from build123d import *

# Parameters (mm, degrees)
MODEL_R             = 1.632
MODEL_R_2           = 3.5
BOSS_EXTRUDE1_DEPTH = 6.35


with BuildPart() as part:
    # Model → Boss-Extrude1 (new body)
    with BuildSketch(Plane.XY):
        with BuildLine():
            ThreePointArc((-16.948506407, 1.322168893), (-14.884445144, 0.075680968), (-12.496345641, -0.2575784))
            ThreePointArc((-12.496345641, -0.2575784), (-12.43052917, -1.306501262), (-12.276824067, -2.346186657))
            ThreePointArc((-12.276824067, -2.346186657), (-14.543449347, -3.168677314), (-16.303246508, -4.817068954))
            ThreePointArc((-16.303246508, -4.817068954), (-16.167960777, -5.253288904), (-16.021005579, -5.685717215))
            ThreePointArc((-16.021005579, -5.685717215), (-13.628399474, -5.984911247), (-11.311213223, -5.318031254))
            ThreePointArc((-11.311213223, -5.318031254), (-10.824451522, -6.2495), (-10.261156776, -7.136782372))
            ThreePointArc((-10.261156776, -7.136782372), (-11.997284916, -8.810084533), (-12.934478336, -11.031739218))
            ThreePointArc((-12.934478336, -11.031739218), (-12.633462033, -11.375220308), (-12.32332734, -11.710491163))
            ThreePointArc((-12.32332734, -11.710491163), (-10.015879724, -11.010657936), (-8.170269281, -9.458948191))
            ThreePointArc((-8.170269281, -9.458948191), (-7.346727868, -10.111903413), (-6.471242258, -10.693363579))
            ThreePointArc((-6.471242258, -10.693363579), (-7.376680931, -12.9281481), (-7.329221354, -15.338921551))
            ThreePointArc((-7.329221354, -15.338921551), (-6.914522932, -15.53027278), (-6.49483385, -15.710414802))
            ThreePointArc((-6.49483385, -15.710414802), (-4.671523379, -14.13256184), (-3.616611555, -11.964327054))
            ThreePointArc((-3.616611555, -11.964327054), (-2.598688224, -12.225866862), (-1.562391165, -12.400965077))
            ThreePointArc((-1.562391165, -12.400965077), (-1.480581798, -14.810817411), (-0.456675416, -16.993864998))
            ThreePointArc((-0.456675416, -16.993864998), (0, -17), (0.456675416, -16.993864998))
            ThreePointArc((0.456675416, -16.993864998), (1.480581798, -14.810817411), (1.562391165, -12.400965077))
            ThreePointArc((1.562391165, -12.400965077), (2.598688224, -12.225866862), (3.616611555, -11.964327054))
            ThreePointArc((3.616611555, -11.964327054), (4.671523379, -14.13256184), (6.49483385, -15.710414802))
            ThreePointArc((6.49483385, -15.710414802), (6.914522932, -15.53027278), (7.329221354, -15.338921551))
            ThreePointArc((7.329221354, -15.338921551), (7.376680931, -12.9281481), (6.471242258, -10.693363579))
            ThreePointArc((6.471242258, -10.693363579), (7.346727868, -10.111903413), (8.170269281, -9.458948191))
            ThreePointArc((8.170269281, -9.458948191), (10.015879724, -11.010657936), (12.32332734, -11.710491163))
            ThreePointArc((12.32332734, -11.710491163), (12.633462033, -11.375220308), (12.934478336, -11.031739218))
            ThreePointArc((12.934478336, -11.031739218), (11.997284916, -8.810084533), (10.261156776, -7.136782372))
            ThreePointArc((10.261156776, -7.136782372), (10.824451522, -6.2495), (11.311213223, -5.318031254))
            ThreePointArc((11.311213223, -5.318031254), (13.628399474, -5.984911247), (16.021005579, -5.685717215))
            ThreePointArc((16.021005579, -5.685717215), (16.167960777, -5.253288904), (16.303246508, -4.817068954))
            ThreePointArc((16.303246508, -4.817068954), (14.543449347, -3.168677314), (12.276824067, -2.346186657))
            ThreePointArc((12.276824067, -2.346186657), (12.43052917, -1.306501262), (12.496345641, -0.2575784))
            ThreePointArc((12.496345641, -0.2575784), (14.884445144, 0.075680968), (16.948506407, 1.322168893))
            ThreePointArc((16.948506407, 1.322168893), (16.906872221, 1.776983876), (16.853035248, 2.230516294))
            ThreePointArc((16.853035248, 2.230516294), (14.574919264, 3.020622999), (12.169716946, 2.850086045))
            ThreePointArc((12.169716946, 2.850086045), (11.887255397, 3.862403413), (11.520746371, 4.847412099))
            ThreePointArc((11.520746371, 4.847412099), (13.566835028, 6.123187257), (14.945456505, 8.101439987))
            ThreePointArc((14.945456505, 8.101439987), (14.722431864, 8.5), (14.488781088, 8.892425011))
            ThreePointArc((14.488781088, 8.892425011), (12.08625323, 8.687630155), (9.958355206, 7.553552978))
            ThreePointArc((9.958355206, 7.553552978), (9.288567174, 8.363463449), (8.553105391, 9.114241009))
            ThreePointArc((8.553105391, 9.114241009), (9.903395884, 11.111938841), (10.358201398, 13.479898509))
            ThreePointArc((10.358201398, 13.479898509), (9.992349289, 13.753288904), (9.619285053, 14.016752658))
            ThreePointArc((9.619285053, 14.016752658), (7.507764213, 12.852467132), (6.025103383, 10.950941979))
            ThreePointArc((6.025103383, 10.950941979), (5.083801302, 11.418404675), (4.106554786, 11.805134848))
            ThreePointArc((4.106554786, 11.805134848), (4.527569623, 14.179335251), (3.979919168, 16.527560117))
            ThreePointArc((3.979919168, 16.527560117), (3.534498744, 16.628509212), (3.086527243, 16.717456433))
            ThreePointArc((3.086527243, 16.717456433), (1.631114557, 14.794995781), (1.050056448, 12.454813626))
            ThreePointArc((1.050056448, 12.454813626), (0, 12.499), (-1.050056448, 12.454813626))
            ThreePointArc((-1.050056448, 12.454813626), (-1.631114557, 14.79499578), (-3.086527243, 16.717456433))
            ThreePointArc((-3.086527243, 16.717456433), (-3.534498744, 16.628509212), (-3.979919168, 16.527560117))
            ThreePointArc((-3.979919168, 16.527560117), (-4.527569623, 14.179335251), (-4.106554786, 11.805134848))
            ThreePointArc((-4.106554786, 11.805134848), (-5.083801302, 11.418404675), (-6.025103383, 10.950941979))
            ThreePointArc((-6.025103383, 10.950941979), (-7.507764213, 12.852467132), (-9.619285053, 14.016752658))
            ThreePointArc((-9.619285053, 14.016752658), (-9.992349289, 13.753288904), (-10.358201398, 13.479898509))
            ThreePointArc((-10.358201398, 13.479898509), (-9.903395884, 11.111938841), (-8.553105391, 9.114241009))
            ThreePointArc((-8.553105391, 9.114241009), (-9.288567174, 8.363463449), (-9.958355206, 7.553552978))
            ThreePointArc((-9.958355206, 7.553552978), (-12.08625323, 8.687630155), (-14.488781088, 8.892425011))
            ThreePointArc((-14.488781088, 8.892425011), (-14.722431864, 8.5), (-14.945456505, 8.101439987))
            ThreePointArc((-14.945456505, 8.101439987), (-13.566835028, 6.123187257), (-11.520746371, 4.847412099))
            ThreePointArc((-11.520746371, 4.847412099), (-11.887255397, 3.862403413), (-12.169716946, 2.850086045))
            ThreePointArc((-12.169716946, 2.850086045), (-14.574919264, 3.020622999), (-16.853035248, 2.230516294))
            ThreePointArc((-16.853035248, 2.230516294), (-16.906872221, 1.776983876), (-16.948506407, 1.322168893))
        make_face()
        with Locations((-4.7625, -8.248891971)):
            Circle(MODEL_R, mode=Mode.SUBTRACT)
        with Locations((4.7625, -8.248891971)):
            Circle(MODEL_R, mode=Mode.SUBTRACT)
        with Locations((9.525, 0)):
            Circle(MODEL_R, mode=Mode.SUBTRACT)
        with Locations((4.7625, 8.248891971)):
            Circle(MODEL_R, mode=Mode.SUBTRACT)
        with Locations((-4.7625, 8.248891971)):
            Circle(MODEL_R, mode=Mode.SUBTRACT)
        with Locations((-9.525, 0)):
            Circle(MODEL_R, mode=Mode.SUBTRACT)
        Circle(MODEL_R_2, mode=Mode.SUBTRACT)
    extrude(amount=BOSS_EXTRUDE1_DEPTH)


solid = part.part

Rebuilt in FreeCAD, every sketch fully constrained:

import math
import FreeCAD as App
import Part
import Sketcher
from FreeCAD import Vector
Q = App.Units.Quantity

doc = App.newDocument("Part")
body = doc.addObject("PartDesign::Body", "Body")

# Sketch on XY plane
sketch1 = body.newObject("Sketcher::SketchObject", "Sketch")
sketch1.AttachmentSupport = (doc.getObject("XY_Plane"), [""])
sketch1.MapMode = "FlatFace"
sketch1.addGeometry([
    Part.ArcOfCircle(Part.Circle(Vector(-12.878044, 5.730268, 0), Vector(0, 0, 1), 6), math.radians(-132.719546), math.radians(-86.352582)),  # 0
    Part.ArcOfCircle(Part.Circle(Vector(0, 0, 0), Vector(0, 0, 1), 12.499), math.radians(-178.819169), math.radians(-169.180831)),  # 1
    Part.ArcOfCircle(Part.Circle(Vector(-11.405238, -8.282544, 0), Vector(0, 0, 1), 6), math.radians(98.352583), math.radians(144.719546)),  # 2
    Part.ArcOfCircle(Part.Circle(Vector(0.000001, 0, 0), Vector(0, 0, 1), 17.000001), math.radians(-163.539336), math.radians(-160.460664)),  # 3
    Part.ArcOfCircle(Part.Circle(Vector(-14.095389, -0.003112, 0), Vector(0, 0, 1), 6), math.radians(-108.719546), math.radians(-62.352583)),  # 4
    Part.ArcOfCircle(Part.Circle(Vector(0, 0, 0), Vector(0, 0, 1), 12.499), math.radians(-154.81917), math.radians(-145.18083)),  # 5
    Part.ArcOfCircle(Part.Circle(Vector(-7.05039, -12.205409, 0), Vector(0, 0, 1), 6), math.radians(122.352582), math.radians(168.719546)),  # 6
    Part.ArcOfCircle(Part.Circle(Vector(0, 0, 0), Vector(0, 0, 1), 17.000001), math.radians(-139.539337), math.radians(-136.460663)),  # 7
    Part.ArcOfCircle(Part.Circle(Vector(-12.875513, -5.735954, 0), Vector(0, 0, 1), 6), math.radians(-84.719546), math.radians(-38.352582)),  # 8
    Part.ArcOfCircle(Part.Circle(Vector(0, 0, 0), Vector(0, 0, 1), 12.499), math.radians(-130.81917), math.radians(-121.18083)),  # 9
    Part.ArcOfCircle(Part.Circle(Vector(-1.476464, -14.017848, 0), Vector(0, 0, 1), 6), math.radians(146.352582), math.radians(192.719546)),  # 10
    Part.ArcOfCircle(Part.Circle(Vector(0, 0, 0), Vector(0, 0, 1), 17), math.radians(-115.539337), math.radians(-112.460663)),  # 11
    Part.ArcOfCircle(Part.Circle(Vector(-9.429343, -10.476998, 0), Vector(0, 0, 1), 6), math.radians(-60.719546), math.radians(-14.352582)),  # 12
    Part.ArcOfCircle(Part.Circle(Vector(0, 0, 0), Vector(0, 0, 1), 12.499), math.radians(-106.81917), math.radians(-97.18083)),  # 13
    Part.ArcOfCircle(Part.Circle(Vector(4.352755, -13.406473, 0), Vector(0, 0, 1), 6), math.radians(170.352582), math.radians(216.719546)),  # 14
    Part.ArcOfCircle(Part.Circle(Vector(0, 0, 0), Vector(0, 0, 1), 17), math.radians(-91.539337), math.radians(-88.460663)),  # 15
    Part.ArcOfCircle(Part.Circle(Vector(-4.352755, -13.406473, 0), Vector(0, 0, 1), 6), math.radians(-36.719546), math.radians(9.647418)),  # 16
    Part.ArcOfCircle(Part.Circle(Vector(0, 0, 0), Vector(0, 0, 1), 12.499), math.radians(-82.81917), math.radians(-73.18083)),  # 17
    Part.ArcOfCircle(Part.Circle(Vector(9.429343, -10.476998, 0), Vector(0, 0, 1), 6), math.radians(-165.647418), math.radians(-119.280454)),  # 18
    Part.ArcOfCircle(Part.Circle(Vector(0, 0, 0), Vector(0, 0, 1), 17), math.radians(-67.539337), math.radians(-64.460663)),  # 19
    Part.ArcOfCircle(Part.Circle(Vector(1.476464, -14.017848, 0), Vector(0, 0, 1), 6), math.radians(-12.719546), math.radians(33.647418)),  # 20
    Part.ArcOfCircle(Part.Circle(Vector(0, 0, 0), Vector(0, 0, 1), 12.499), math.radians(-58.81917), math.radians(-49.18083)),  # 21
    Part.ArcOfCircle(Part.Circle(Vector(12.875513, -5.735954, 0), Vector(0, 0, 1), 6), math.radians(-141.647418), math.radians(-95.280454)),  # 22
    Part.ArcOfCircle(Part.Circle(Vector(0, 0, 0), Vector(0, 0, 1), 17.000001), math.radians(-43.539337), math.radians(-40.460663)),  # 23
    Part.ArcOfCircle(Part.Circle(Vector(7.05039, -12.205409, 0), Vector(0, 0, 1), 6), math.radians(11.280454), math.radians(57.647418)),  # 24
    Part.ArcOfCircle(Part.Circle(Vector(0, 0, 0), Vector(0, 0, 1), 12.499), math.radians(-34.81917), math.radians(-25.18083)),  # 25
    Part.ArcOfCircle(Part.Circle(Vector(14.095389, -0.003112, 0), Vector(0, 0, 1), 6), math.radians(-117.647417), math.radians(-71.280454)),  # 26
    Part.ArcOfCircle(Part.Circle(Vector(-0.000001, 0, 0), Vector(0, 0, 1), 17.000001), math.radians(-19.539336), math.radians(-16.460664)),  # 27
    Part.ArcOfCircle(Part.Circle(Vector(11.405238, -8.282544, 0), Vector(0, 0, 1), 6), math.radians(35.280454), math.radians(81.647417)),  # 28
    Part.ArcOfCircle(Part.Circle(Vector(0, 0, 0), Vector(0, 0, 1), 12.499), math.radians(-10.819169), math.radians(-1.180831)),  # 29
    Part.ArcOfCircle(Part.Circle(Vector(12.878044, 5.730268, 0), Vector(0, 0, 1), 6), math.radians(-93.647418), math.radians(-47.280454)),  # 30
    Part.ArcOfCircle(Part.Circle(Vector(-0.000001, 0, 0), Vector(0, 0, 1), 17.000001), math.radians(4.460664), math.radians(7.539336)),  # 31
    Part.ArcOfCircle(Part.Circle(Vector(13.788018, -2.927552, 0), Vector(0, 0, 1), 6), math.radians(59.280454), math.radians(105.647418)),  # 32
    Part.ArcOfCircle(Part.Circle(Vector(0, 0, 0), Vector(0, 0, 1), 12.499), math.radians(13.180831), math.radians(22.81917)),  # 33
    Part.ArcOfCircle(Part.Circle(Vector(9.433969, 10.472833, 0), Vector(0, 0, 1), 6), math.radians(-69.647417), math.radians(-23.280454)),  # 34
    Part.ArcOfCircle(Part.Circle(Vector(-0.000001, 0, 0), Vector(0, 0, 1), 17.000001), math.radians(28.460664), math.radians(31.539337)),  # 35
    Part.ArcOfCircle(Part.Circle(Vector(13.786724, 2.93364, 0), Vector(0, 0, 1), 6), math.radians(83.280454), math.radians(129.647418)),  # 36
    Part.ArcOfCircle(Part.Circle(Vector(0, 0, 0), Vector(0, 0, 1), 12.499), math.radians(37.18083), math.radians(46.81917)),  # 37
    Part.ArcOfCircle(Part.Circle(Vector(4.358675, 13.40455, 0), Vector(0, 0, 1), 6), math.radians(-45.647417), math.radians(0.719546)),  # 38
    Part.ArcOfCircle(Part.Circle(Vector(-0.000001, -0.000001, 0), Vector(0, 0, 1), 17.000002), math.radians(52.460664), math.radians(55.539336)),  # 39
    Part.ArcOfCircle(Part.Circle(Vector(11.40158, 8.28758, 0), Vector(0, 0, 1), 6), math.radians(107.280454), math.radians(153.647418)),  # 40
    Part.ArcOfCircle(Part.Circle(Vector(0, 0, 0), Vector(0, 0, 1), 12.499), math.radians(61.18083), math.radians(70.81917)),  # 41
    Part.ArcOfCircle(Part.Circle(Vector(-1.470274, 14.018498, 0), Vector(0, 0, 1), 6), math.radians(-21.647418), math.radians(24.719546)),  # 42
    Part.ArcOfCircle(Part.Circle(Vector(0, -0.000002, 0), Vector(0, 0, 1), 17.000002), math.radians(76.460664), math.radians(79.539336)),  # 43
    Part.ArcOfCircle(Part.Circle(Vector(7.044999, 12.208521, 0), Vector(0, 0, 1), 6), math.radians(131.280454), math.radians(177.647418)),  # 44
    Part.ArcOfCircle(Part.Circle(Vector(0, 0, 0), Vector(0, 0, 1), 12.499), math.radians(85.18083), math.radians(94.81917)),  # 45
    Part.ArcOfCircle(Part.Circle(Vector(-7.044999, 12.208521, 0), Vector(0, 0, 1), 6), math.radians(2.352582), math.radians(48.719546)),  # 46
    Part.ArcOfCircle(Part.Circle(Vector(0, -0.000002, 0), Vector(0, 0, 1), 17.000002), math.radians(100.460664), math.radians(103.539336)),  # 47
    Part.ArcOfCircle(Part.Circle(Vector(1.470274, 14.018498, 0), Vector(0, 0, 1), 6), math.radians(155.280454), math.radians(201.647418)),  # 48
    Part.ArcOfCircle(Part.Circle(Vector(0, 0, 0), Vector(0, 0, 1), 12.499), math.radians(109.18083), math.radians(118.81917)),  # 49
    Part.ArcOfCircle(Part.Circle(Vector(-11.40158, 8.28758, 0), Vector(0, 0, 1), 6), math.radians(26.352582), math.radians(72.719546)),  # 50
    Part.ArcOfCircle(Part.Circle(Vector(0.000001, -0.000001, 0), Vector(0, 0, 1), 17.000002), math.radians(124.460664), math.radians(127.539336)),  # 51
    Part.ArcOfCircle(Part.Circle(Vector(-4.358675, 13.40455, 0), Vector(0, 0, 1), 6), math.radians(179.280454), math.radians(225.647417)),  # 52
    Part.ArcOfCircle(Part.Circle(Vector(0, 0, 0), Vector(0, 0, 1), 12.499), math.radians(133.18083), math.radians(142.81917)),  # 53
    Part.ArcOfCircle(Part.Circle(Vector(-13.786724, 2.93364, 0), Vector(0, 0, 1), 6), math.radians(50.352582), math.radians(96.719546)),  # 54
    Part.ArcOfCircle(Part.Circle(Vector(0.000001, 0, 0), Vector(0, 0, 1), 17.000001), math.radians(148.460663), math.radians(151.539336)),  # 55
    Part.ArcOfCircle(Part.Circle(Vector(-9.433969, 10.472833, 0), Vector(0, 0, 1), 6), math.radians(-156.719546), math.radians(-110.352583)),  # 56
    Part.ArcOfCircle(Part.Circle(Vector(0, 0, 0), Vector(0, 0, 1), 12.499), math.radians(157.18083), math.radians(166.819169)),  # 57
    Part.ArcOfCircle(Part.Circle(Vector(-13.788018, -2.927552, 0), Vector(0, 0, 1), 6), math.radians(74.352582), math.radians(120.719546)),  # 58
    Part.ArcOfCircle(Part.Circle(Vector(0.000001, 0, 0), Vector(0, 0, 1), 17.000001), math.radians(172.460664), math.radians(175.539336)),  # 59
    Part.Circle(Vector(-4.7625, -8.248892, 0), Vector(0, 0, 1), 1.632),  # 60
    Part.Circle(Vector(4.7625, -8.248892, 0), Vector(0, 0, 1), 1.632),  # 61
    Part.Circle(Vector(-9.525, 0, 0), Vector(0, 0, 1), 1.632),  # 62
    Part.Circle(Vector(-4.7625, 8.248892, 0), Vector(0, 0, 1), 1.632),  # 63
    Part.Circle(Vector(0, 0, 0), Vector(0, 0, 1), 3.5),  # 64
    Part.Circle(Vector(9.525, 0, 0), Vector(0, 0, 1), 1.632),  # 65
    Part.Circle(Vector(4.7625, 8.248892, 0), Vector(0, 0, 1), 1.632),  # 66
], False)
sketch1.addConstraint([
    Sketcher.Constraint("Coincident", 0, 2, 1, 1),
    Sketcher.Constraint("Coincident", 1, 2, 2, 1),
    Sketcher.Constraint("Coincident", 2, 2, 3, 1),
    Sketcher.Constraint("Coincident", 3, 2, 4, 1),
    Sketcher.Constraint("Coincident", 4, 2, 5, 1),
    Sketcher.Constraint("Coincident", 5, 2, 6, 1),
    Sketcher.Constraint("Coincident", 6, 2, 7, 1),
    Sketcher.Constraint("Coincident", 7, 2, 8, 1),
    Sketcher.Constraint("Coincident", 8, 2, 9, 1),
    Sketcher.Constraint("Coincident", 9, 2, 10, 1),
    Sketcher.Constraint("Coincident", 10, 2, 11, 1),
    Sketcher.Constraint("Coincident", 11, 2, 12, 1),
    Sketcher.Constraint("Coincident", 12, 2, 13, 1),
    Sketcher.Constraint("Coincident", 13, 2, 14, 1),
    Sketcher.Constraint("Coincident", 14, 2, 15, 1),
    Sketcher.Constraint("Coincident", 15, 2, 16, 1),
    Sketcher.Constraint("Coincident", 16, 2, 17, 1),
    Sketcher.Constraint("Coincident", 17, 2, 18, 1),
    Sketcher.Constraint("Coincident", 18, 2, 19, 1),
    Sketcher.Constraint("Coincident", 19, 2, 20, 1),
    Sketcher.Constraint("Coincident", 20, 2, 21, 1),
    Sketcher.Constraint("Coincident", 21, 2, 22, 1),
    Sketcher.Constraint("Coincident", 22, 2, 23, 1),
    Sketcher.Constraint("Coincident", 23, 2, 24, 1),
    Sketcher.Constraint("Coincident", 24, 2, 25, 1),
    Sketcher.Constraint("Coincident", 25, 2, 26, 1),
    Sketcher.Constraint("Coincident", 26, 2, 27, 1),
    Sketcher.Constraint("Coincident", 27, 2, 28, 1),
    Sketcher.Constraint("Coincident", 28, 2, 29, 1),
    Sketcher.Constraint("Coincident", 29, 2, 30, 1),
    Sketcher.Constraint("Coincident", 30, 2, 31, 1),
    Sketcher.Constraint("Coincident", 31, 2, 32, 1),
    Sketcher.Constraint("Coincident", 32, 2, 33, 1),
    Sketcher.Constraint("Coincident", 33, 2, 34, 1),
    Sketcher.Constraint("Coincident", 34, 2, 35, 1),
    Sketcher.Constraint("Coincident", 35, 2, 36, 1),
    Sketcher.Constraint("Coincident", 36, 2, 37, 1),
    Sketcher.Constraint("Coincident", 37, 2, 38, 1),
    Sketcher.Constraint("Coincident", 38, 2, 39, 1),
    Sketcher.Constraint("Coincident", 39, 2, 40, 1),
    Sketcher.Constraint("Coincident", 40, 2, 41, 1),
    Sketcher.Constraint("Coincident", 41, 2, 42, 1),
    Sketcher.Constraint("Coincident", 42, 2, 43, 1),
    Sketcher.Constraint("Coincident", 43, 2, 44, 1),
    Sketcher.Constraint("Coincident", 44, 2, 45, 1),
    Sketcher.Constraint("Coincident", 45, 2, 46, 1),
    Sketcher.Constraint("Coincident", 46, 2, 47, 1),
    Sketcher.Constraint("Coincident", 47, 2, 48, 1),
    Sketcher.Constraint("Coincident", 48, 2, 49, 1),
    Sketcher.Constraint("Coincident", 49, 2, 50, 1),
    Sketcher.Constraint("Coincident", 50, 2, 51, 1),
    Sketcher.Constraint("Coincident", 51, 2, 52, 1),
    Sketcher.Constraint("Coincident", 52, 2, 53, 1),
    Sketcher.Constraint("Coincident", 53, 2, 54, 1),
    Sketcher.Constraint("Coincident", 54, 2, 55, 1),
    Sketcher.Constraint("Coincident", 55, 2, 56, 1),
    Sketcher.Constraint("Coincident", 56, 2, 57, 1),
    Sketcher.Constraint("Coincident", 57, 2, 58, 1),
    Sketcher.Constraint("Coincident", 58, 2, 59, 1),
    Sketcher.Constraint("Coincident", 59, 2, 0, 1),
    Sketcher.Constraint("Coincident", 1, 3, -1, 1),
    Sketcher.Constraint("Coincident", 3, 3, -1, 1),
    Sketcher.Constraint("Coincident", 5, 3, -1, 1),
    Sketcher.Constraint("Coincident", 7, 3, -1, 1),
    Sketcher.Constraint("Coincident", 9, 3, -1, 1),
    Sketcher.Constraint("Coincident", 11, 3, -1, 1),
    Sketcher.Constraint("Coincident", 13, 3, -1, 1),
    Sketcher.Constraint("Coincident", 15, 3, -1, 1),
    Sketcher.Constraint("Coincident", 17, 3, -1, 1),
    Sketcher.Constraint("Coincident", 19, 3, -1, 1),
    Sketcher.Constraint("Coincident", 21, 3, -1, 1),
    Sketcher.Constraint("Coincident", 23, 3, -1, 1),
    Sketcher.Constraint("Coincident", 25, 3, -1, 1),
    Sketcher.Constraint("Coincident", 27, 3, -1, 1),
    Sketcher.Constraint("Coincident", 29, 3, -1, 1),
    Sketcher.Constraint("Coincident", 31, 3, -1, 1),
    Sketcher.Constraint("Coincident", 33, 3, -1, 1),
    Sketcher.Constraint("Coincident", 35, 3, -1, 1),
    Sketcher.Constraint("Coincident", 37, 3, -1, 1),
    Sketcher.Constraint("Coincident", 39, 3, -1, 1),
    Sketcher.Constraint("Coincident", 41, 3, -1, 1),
    Sketcher.Constraint("Coincident", 43, 3, -1, 1),
    Sketcher.Constraint("Coincident", 45, 3, -1, 1),
    Sketcher.Constraint("Coincident", 47, 3, -1, 1),
    Sketcher.Constraint("Coincident", 49, 3, -1, 1),
    Sketcher.Constraint("Coincident", 51, 3, -1, 1),
    Sketcher.Constraint("Coincident", 53, 3, -1, 1),
    Sketcher.Constraint("Coincident", 55, 3, -1, 1),
    Sketcher.Constraint("Coincident", 57, 3, -1, 1),
    Sketcher.Constraint("Coincident", 59, 3, -1, 1),
    Sketcher.Constraint("Coincident", 64, 3, -1, 1),
    Sketcher.Constraint("Equal", 0, 2),
    Sketcher.Constraint("Equal", 2, 4),
    Sketcher.Constraint("Equal", 1, 5),
    Sketcher.Constraint("Equal", 4, 6),
    Sketcher.Constraint("Equal", 3, 7),
    Sketcher.Constraint("Equal", 6, 8),
    Sketcher.Constraint("Equal", 5, 9),
    Sketcher.Constraint("Equal", 8, 10),
    Sketcher.Constraint("Equal", 7, 11),
    Sketcher.Constraint("Equal", 10, 12),
    Sketcher.Constraint("Equal", 9, 13),
    Sketcher.Constraint("Equal", 12, 14),
    Sketcher.Constraint("Equal", 11, 15),
    Sketcher.Constraint("Equal", 14, 16),
    Sketcher.Constraint("Equal", 13, 17),
    Sketcher.Constraint("Equal", 16, 18),
    Sketcher.Constraint("Equal", 15, 19),
    Sketcher.Constraint("Equal", 18, 20),
    Sketcher.Constraint("Equal", 17, 21),
    Sketcher.Constraint("Equal", 20, 22),
    Sketcher.Constraint("Equal", 19, 23),
    Sketcher.Constraint("Equal", 22, 24),
    Sketcher.Constraint("Equal", 21, 25),
    Sketcher.Constraint("Equal", 24, 26),
    Sketcher.Constraint("Equal", 23, 27),
    Sketcher.Constraint("Equal", 26, 28),
    Sketcher.Constraint("Equal", 25, 29),
    Sketcher.Constraint("Equal", 28, 30),
    Sketcher.Constraint("Equal", 27, 31),
    Sketcher.Constraint("Equal", 30, 32),
    Sketcher.Constraint("Equal", 29, 33),
    Sketcher.Constraint("Equal", 32, 34),
    Sketcher.Constraint("Equal", 31, 35),
    Sketcher.Constraint("Equal", 34, 36),
    Sketcher.Constraint("Equal", 33, 37),
    Sketcher.Constraint("Equal", 36, 38),
    Sketcher.Constraint("Equal", 35, 39),
    Sketcher.Constraint("Equal", 38, 40),
    Sketcher.Constraint("Equal", 37, 41),
    Sketcher.Constraint("Equal", 40, 42),
    Sketcher.Constraint("Equal", 39, 43),
    Sketcher.Constraint("Equal", 42, 44),
    Sketcher.Constraint("Equal", 41, 45),
    Sketcher.Constraint("Equal", 44, 46),
    Sketcher.Constraint("Equal", 43, 47),
    Sketcher.Constraint("Equal", 46, 48),
    Sketcher.Constraint("Equal", 45, 49),
    Sketcher.Constraint("Equal", 48, 50),
    Sketcher.Constraint("Equal", 47, 51),
    Sketcher.Constraint("Equal", 50, 52),
    Sketcher.Constraint("Equal", 49, 53),
    Sketcher.Constraint("Equal", 52, 54),
    Sketcher.Constraint("Equal", 51, 55),
    Sketcher.Constraint("Equal", 54, 56),
    Sketcher.Constraint("Equal", 53, 57),
    Sketcher.Constraint("Equal", 56, 58),
    Sketcher.Constraint("Equal", 55, 59),
    Sketcher.Constraint("Equal", 60, 61),
    Sketcher.Constraint("Equal", 61, 62),
    Sketcher.Constraint("Equal", 62, 63),
    Sketcher.Constraint("Equal", 63, 65),
    Sketcher.Constraint("Equal", 65, 66),
    Sketcher.Constraint("Symmetric", 61, 3, 63, 3, -1, 1),
    Sketcher.Constraint("Symmetric", 62, 3, 65, 3, -1, 1),
    Sketcher.Constraint("Symmetric", 60, 3, 66, 3, -1, 1),
    Sketcher.Constraint("Symmetric", 14, 3, 16, 3, -2),
    Sketcher.Constraint("Symmetric", 12, 3, 18, 3, -2),
    Sketcher.Constraint("Symmetric", 10, 3, 20, 3, -2),
    Sketcher.Constraint("Symmetric", 8, 3, 22, 3, -2),
    Sketcher.Constraint("Symmetric", 6, 3, 24, 3, -2),
    Sketcher.Constraint("Symmetric", 4, 3, 26, 3, -2),
    Sketcher.Constraint("Symmetric", 2, 3, 28, 3, -2),
    Sketcher.Constraint("Symmetric", 0, 3, 30, 3, -2),
    Sketcher.Constraint("Symmetric", 44, 3, 46, 3, -2),
    Sketcher.Constraint("Symmetric", 42, 3, 48, 3, -2),
    Sketcher.Constraint("Symmetric", 40, 3, 50, 3, -2),
    Sketcher.Constraint("Symmetric", 38, 3, 52, 3, -2),
    Sketcher.Constraint("Symmetric", 36, 3, 54, 3, -2),
    Sketcher.Constraint("Symmetric", 34, 3, 56, 3, -2),
    Sketcher.Constraint("Symmetric", 32, 3, 58, 3, -2),
    Sketcher.Constraint("Symmetric", 60, 3, 61, 3, -2),
    Sketcher.Constraint("PointOnObject", 62, 3, -1),
    Sketcher.Constraint("Diameter", 64, Q("7 mm")),
    Sketcher.Constraint("Radius", 0, Q("6 mm")),
    Sketcher.Constraint("Radius", 3, Q("17.000001 mm")),
    Sketcher.Constraint("Diameter", 60, Q("3.264 mm")),
    Sketcher.Constraint("Radius", 1, Q("12.499 mm")),
    Sketcher.Constraint("DistanceX", -1, 1, 44, 3, Q("7.044999 mm")),
    Sketcher.Constraint("DistanceX", 62, 3, -1, 1, Q("9.525 mm")),
    Sketcher.Constraint("DistanceY", -1, 1, 42, 3, Q("14.018498 mm")),
    Sketcher.Constraint("DistanceX", 60, 3, -1, 1, Q("4.7625 mm")),
    Sketcher.Constraint("DistanceX", -1, 1, 38, 2, Q("10.358201 mm")),
    Sketcher.Constraint("DistanceY", -1, 1, 0, 3, Q("5.730268 mm")),
    Sketcher.Constraint("DistanceX", 2, 3, -1, 1, Q("11.405238 mm")),
    Sketcher.Constraint("DistanceX", 4, 3, -1, 1, Q("14.095389 mm")),
    Sketcher.Constraint("DistanceX", 6, 3, -1, 1, Q("7.05039 mm")),
    Sketcher.Constraint("DistanceY", 6, 3, -1, 1, Q("12.205409 mm")),
    Sketcher.Constraint("DistanceX", -1, 1, 34, 3, Q("9.433969 mm")),
    Sketcher.Constraint("DistanceY", -1, 1, 36, 3, Q("2.93364 mm")),
    Sketcher.Constraint("DistanceY", -1, 1, 38, 3, Q("13.40455 mm")),
    Sketcher.Constraint("DistanceX", -1, 1, 40, 3, Q("11.40158 mm")),
    Sketcher.Constraint("DistanceY", -1, 1, 40, 3, Q("8.28758 mm")),
    Sketcher.Constraint("DistanceY", -1, 1, 44, 3, Q("12.208521 mm")),
    Sketcher.Constraint("DistanceY", 60, 3, -1, 1, Q("8.248892 mm")),
    Sketcher.Constraint("DistanceY", 0, 2, -1, 1, Q("0.257578 mm")),
    Sketcher.Constraint("DistanceY", 2, 2, -1, 1, Q("4.817069 mm")),
    Sketcher.Constraint("DistanceY", 4, 2, -1, 1, Q("5.318031 mm")),
    Sketcher.Constraint("DistanceY", 7, 2, -1, 1, Q("11.710491 mm")),
    Sketcher.Constraint("DistanceX", 8, 2, -1, 1, Q("8.170269 mm")),
    Sketcher.Constraint("DistanceX", 10, 2, -1, 1, Q("7.329221 mm")),
    Sketcher.Constraint("DistanceX", 12, 2, -1, 1, Q("3.616612 mm")),
    Sketcher.Constraint("DistanceX", 13, 2, -1, 1, Q("1.562391 mm")),
    Sketcher.Constraint("DistanceY", -1, 1, 34, 2, Q("8.10144 mm")),
    Sketcher.Constraint("DistanceX", -1, 1, 35, 2, Q("14.488781 mm")),
    Sketcher.Constraint("DistanceX", -1, 1, 42, 2, Q("3.979919 mm")),
    Sketcher.Constraint("DistanceX", 10, 3, -1, 1, Q("1.476464 mm")),
    Sketcher.Constraint("DistanceX", 12, 3, -1, 1, Q("9.429343 mm")),
    Sketcher.Constraint("DistanceX", -1, 1, 14, 3, Q("4.352755 mm")),
    Sketcher.Constraint("DistanceX", -1, 1, 32, 3, Q("13.788018 mm")),
    Sketcher.Constraint("DistanceY", 32, 3, -1, 1, Q("2.927552 mm")),
])
pad1 = body.newObject("PartDesign::Pad", "Pad")
pad1.Profile = sketch1
pad1.Length = 6.35

doc.recompute()
